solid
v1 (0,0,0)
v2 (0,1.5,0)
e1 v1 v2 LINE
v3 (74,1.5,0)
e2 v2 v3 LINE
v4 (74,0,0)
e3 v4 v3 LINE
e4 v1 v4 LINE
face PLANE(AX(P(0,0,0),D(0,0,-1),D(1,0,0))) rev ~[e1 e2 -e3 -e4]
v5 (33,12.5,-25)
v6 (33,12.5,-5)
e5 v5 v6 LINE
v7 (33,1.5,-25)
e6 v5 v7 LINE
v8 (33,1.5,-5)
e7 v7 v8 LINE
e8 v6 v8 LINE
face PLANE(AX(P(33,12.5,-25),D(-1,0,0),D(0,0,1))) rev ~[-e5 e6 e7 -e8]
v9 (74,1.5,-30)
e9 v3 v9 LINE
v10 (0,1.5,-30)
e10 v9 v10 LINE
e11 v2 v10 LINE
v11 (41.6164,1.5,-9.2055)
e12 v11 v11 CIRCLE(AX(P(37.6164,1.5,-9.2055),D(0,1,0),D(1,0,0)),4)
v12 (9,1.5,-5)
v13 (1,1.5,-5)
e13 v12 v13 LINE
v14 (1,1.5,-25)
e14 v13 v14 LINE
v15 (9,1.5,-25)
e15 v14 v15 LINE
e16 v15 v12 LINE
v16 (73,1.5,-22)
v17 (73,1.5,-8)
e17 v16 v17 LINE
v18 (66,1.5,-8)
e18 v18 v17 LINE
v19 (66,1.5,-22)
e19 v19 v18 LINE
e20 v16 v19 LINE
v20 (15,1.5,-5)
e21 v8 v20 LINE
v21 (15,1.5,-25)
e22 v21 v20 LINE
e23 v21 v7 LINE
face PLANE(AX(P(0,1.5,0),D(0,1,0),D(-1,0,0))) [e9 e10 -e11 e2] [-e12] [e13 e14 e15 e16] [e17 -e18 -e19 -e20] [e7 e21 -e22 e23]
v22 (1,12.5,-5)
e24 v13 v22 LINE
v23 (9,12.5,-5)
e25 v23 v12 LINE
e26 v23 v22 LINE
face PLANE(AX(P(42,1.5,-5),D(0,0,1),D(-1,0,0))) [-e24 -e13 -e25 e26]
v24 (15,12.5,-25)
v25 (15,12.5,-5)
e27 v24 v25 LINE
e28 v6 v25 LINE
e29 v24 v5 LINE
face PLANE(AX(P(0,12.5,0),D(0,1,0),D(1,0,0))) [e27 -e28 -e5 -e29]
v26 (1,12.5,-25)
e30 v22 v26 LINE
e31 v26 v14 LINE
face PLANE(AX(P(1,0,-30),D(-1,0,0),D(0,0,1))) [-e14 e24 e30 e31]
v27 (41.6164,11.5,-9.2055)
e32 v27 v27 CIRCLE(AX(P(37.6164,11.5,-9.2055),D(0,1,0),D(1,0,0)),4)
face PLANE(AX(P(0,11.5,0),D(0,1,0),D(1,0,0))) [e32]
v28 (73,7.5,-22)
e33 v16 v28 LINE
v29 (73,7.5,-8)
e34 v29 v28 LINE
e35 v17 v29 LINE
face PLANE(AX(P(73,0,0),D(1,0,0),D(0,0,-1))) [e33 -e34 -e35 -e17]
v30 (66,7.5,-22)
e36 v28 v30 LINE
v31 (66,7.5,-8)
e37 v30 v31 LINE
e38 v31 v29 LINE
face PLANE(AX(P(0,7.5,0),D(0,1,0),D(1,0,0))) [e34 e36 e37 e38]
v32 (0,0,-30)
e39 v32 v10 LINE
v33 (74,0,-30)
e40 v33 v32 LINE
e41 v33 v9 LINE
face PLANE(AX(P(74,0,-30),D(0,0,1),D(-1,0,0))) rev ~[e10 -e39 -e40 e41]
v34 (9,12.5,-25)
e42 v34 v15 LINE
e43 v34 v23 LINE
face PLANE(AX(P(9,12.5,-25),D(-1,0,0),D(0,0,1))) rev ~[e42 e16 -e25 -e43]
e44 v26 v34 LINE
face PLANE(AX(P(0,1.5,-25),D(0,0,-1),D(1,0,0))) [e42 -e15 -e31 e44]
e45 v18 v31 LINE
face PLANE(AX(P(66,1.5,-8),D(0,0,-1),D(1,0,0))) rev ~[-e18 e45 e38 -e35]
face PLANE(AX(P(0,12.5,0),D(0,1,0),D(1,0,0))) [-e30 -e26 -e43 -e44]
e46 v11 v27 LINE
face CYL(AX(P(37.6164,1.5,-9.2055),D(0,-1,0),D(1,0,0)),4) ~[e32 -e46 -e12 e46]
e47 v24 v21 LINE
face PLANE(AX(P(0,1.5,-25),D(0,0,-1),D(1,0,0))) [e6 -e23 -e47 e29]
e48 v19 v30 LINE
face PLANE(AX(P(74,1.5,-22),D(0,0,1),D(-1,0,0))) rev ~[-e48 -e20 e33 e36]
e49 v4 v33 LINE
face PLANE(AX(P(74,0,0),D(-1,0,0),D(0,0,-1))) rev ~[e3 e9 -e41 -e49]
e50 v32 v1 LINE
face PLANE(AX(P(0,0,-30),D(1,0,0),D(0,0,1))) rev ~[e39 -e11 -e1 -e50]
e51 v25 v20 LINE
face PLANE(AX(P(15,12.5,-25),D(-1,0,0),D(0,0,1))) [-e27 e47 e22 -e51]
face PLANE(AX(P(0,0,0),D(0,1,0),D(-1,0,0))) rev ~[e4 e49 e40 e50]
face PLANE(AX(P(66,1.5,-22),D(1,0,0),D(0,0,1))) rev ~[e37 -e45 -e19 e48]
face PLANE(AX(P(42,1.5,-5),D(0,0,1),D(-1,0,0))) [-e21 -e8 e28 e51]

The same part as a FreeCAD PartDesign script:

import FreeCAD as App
import Part
import Sketcher

doc = App.newDocument("Part")
params = doc.addObject("Spreadsheet::Sheet", "Params")
for row, (alias, value) in enumerate([
    ("sketch1_width", "74 mm"),
    ("sketch1_height", "30 mm"),
    ("pad1_length", "1.5 mm"),
    ("sketch2_width", "42 mm"),
    ("sketch2_height", "20 mm"),
    ("pad2_length", "11 mm"),
    ("sketch3_width", "8 mm"),
    ("sketch3_height", "14 mm"),
    ("pad3_length", "6 mm"),
    ("sketch4_width", "6 mm"),
    ("sketch4_height", "20 mm"),
    ("pocket1_length", "11 mm"),
    ("sketch5_width", "9 mm"),
    ("sketch5_height", "20 mm"),
    ("pocket2_length", "11 mm"),
    ("sketch6_diameter", "8 mm"),
    ("pad4_length", "10 mm"),
    ("sketch7_width", "11 mm"),
    ("sketch7_height", "20 mm"),
    ("pocket3_length", "1 mm"),
    ("sketch8_width", "6 mm"),
    ("sketch8_height", "14 mm"),
    ("pocket4_length", "1 mm"),
], start=1):
    params.set(f"A{row}", alias)
    params.set(f"B{row}", "=" + value)
    params.setAlias(f"B{row}", alias)

body = doc.addObject("PartDesign::Body", "Body")

# Sketch on XZ plane
sketch1 = doc.addObject("Sketcher::SketchObject", "Sketch")
body.addObject(sketch1)
sketch1.AttachmentSupport = (doc.XZ_Plane, [""])
sketch1.MapMode = "FlatFace"
sketch1.addGeometry([
    Part.LineSegment(App.Vector(0, -30, 0), App.Vector(0, 0, 0)),
    Part.LineSegment(App.Vector(0, 0, 0), App.Vector(74, 0, 0)),
    Part.LineSegment(App.Vector(74, 0, 0), App.Vector(74, -30, 0)),
    Part.LineSegment(App.Vector(74, -30, 0), App.Vector(0, -30, 0)),
], False)
sketch1.addConstraint([
    Sketcher.Constraint("Coincident", 0, 2, 1, 1),
    Sketcher.Constraint("Coincident", 1, 2, 2, 1),
    Sketcher.Constraint("Coincident", 2, 2, 3, 1),
    Sketcher.Constraint("Coincident", 3, 2, 0, 1),
    Sketcher.Constraint("Vertical", 0),
    Sketcher.Constraint("Horizontal", 1),
    Sketcher.Constraint("Vertical", 2),
    Sketcher.Constraint("Horizontal", 3),
    Sketcher.Constraint("Coincident", 0, 2, -1, 1),
    Sketcher.Constraint("DistanceX", 1, 1, 1, 2, 74.0),
    Sketcher.Constraint("DistanceY", 0, 1, 0, 2, 30.0),
])
sketch1.setExpression("Constraints[9]", "Params.sketch1_width")
sketch1.setExpression("Constraints[10]", "Params.sketch1_height")
pad1 = doc.addObject("PartDesign::Pad", "Pad")
body.addObject(pad1)
pad1.Profile = sketch1
pad1.setExpression("Length", "Params.pad1_length")
pad1.Reversed = True

# Sketch on XZ plane
sketch2 = doc.addObject("Sketcher::SketchObject", "Sketch001")
body.addObject(sketch2)
sketch2.AttachmentSupport = (doc.XZ_Plane, [""])
sketch2.MapMode = "FlatFace"
sketch2.AttachmentOffset = App.Placement(App.Vector(0, 0, -1.5), App.Rotation())
sketch2.addGeometry([
    Part.LineSegment(App.Vector(42, -25, 0), App.Vector(0, -25, 0)),
    Part.LineSegment(App.Vector(0, -25, 0), App.Vector(0, -5, 0)),
    Part.LineSegment(App.Vector(0, -5, 0), App.Vector(42, -5, 0)),
    Part.LineSegment(App.Vector(42, -5, 0), App.Vector(42, -25, 0)),
], False)
sketch2.addConstraint([
    Sketcher.Constraint("Coincident", 0, 2, 1, 1),
    Sketcher.Constraint("Coincident", 1, 2, 2, 1),
    Sketcher.Constraint("Coincident", 2, 2, 3, 1),
    Sketcher.Constraint("Coincident", 3, 2, 0, 1),
    Sketcher.Constraint("Horizontal", 0),
    Sketcher.Constraint("Vertical", 1),
    Sketcher.Constraint("Horizontal", 2),
    Sketcher.Constraint("Vertical", 3),
    Sketcher.Constraint("PointOnObject", 0, 2, -2),
    Sketcher.Constraint("DistanceX", 0, 2, 0, 1, 42.0),
    Sketcher.Constraint("DistanceY", 1, 2, -1, 1, 5.0),
    Sketcher.Constraint("DistanceY", 1, 1, 1, 2, 20.0),
])
sketch2.setExpression("Constraints[9]", "Params.sketch2_width")
sketch2.setExpression("Constraints[11]", "Params.sketch2_height")
pad2 = doc.addObject("PartDesign::Pad", "Pad001")
body.addObject(pad2)
pad2.Profile = sketch2
pad2.setExpression("Length", "Params.pad2_length")
pad2.Reversed = True

# Sketch on XZ plane
sketch3 = doc.addObject("Sketcher::SketchObject", "Sketch002")
body.addObject(sketch3)
sketch3.AttachmentSupport = (doc.XZ_Plane, [""])
sketch3.MapMode = "FlatFace"
sketch3.AttachmentOffset = App.Placement(App.Vector(0, 0, -1.5), App.Rotation())
sketch3.addGeometry([
    Part.LineSegment(App.Vector(74, -8, 0), App.Vector(74, -22, 0)),
    Part.LineSegment(App.Vector(74, -22, 0), App.Vector(66, -22, 0)),
    Part.LineSegment(App.Vector(66, -22, 0), App.Vector(66, -8, 0)),
    Part.LineSegment(App.Vector(66, -8, 0), App.Vector(74, -8, 0)),
], False)
sketch3.addConstraint([
    Sketcher.Constraint("Coincident", 0, 2, 1, 1),
    Sketcher.Constraint("Coincident", 1, 2, 2, 1),
    Sketcher.Constraint("Coincident", 2, 2, 3, 1),
    Sketcher.Constraint("Coincident", 3, 2, 0, 1),
    Sketcher.Constraint("Vertical", 0),
    Sketcher.Constraint("Horizontal", 1),
    Sketcher.Constraint("Vertical", 2),
    Sketcher.Constraint("Horizontal", 3),
    Sketcher.Constraint("DistanceX", 1, 2, 1, 1, 8.0),
    Sketcher.Constraint("DistanceY", 2, 2, -1, 1, 8.0),
    Sketcher.Constraint("DistanceY", 0, 2, 0, 1, 14.0),
    Sketcher.Constraint("DistanceX", -1, 1, 0, 2, 74.0),
])
sketch3.setExpression("Constraints[8]", "Params.sketch3_width")
sketch3.setExpression("Constraints[10]", "Params.sketch3_height")
pad3 = doc.addObject("PartDesign::Pad", "Pad002")
body.addObject(pad3)
pad3.Profile = sketch3
pad3.setExpression("Length", "Params.pad3_length")
pad3.Reversed = True

# Sketch on XZ plane
sketch4 = doc.addObject("Sketcher::SketchObject", "Sketch003")
body.addObject(sketch4)
sketch4.AttachmentSupport = (doc.XZ_Plane, [""])
sketch4.MapMode = "FlatFace"
sketch4.AttachmentOffset = App.Placement(App.Vector(0, 0, -12.5), App.Rotation())
sketch4.addGeometry([
    Part.LineSegment(App.Vector(15, -25, 0), App.Vector(9, -25, 0)),
    Part.LineSegment(App.Vector(9, -25, 0), App.Vector(9, -5, 0)),
    Part.LineSegment(App.Vector(9, -5, 0), App.Vector(15, -5, 0)),
    Part.LineSegment(App.Vector(15, -5, 0), App.Vector(15, -25, 0)),
], False)
sketch4.addConstraint([
    Sketcher.Constraint("Coincident", 0, 2, 1, 1),
    Sketcher.Constraint("Coincident", 1, 2, 2, 1),
    Sketcher.Constraint("Coincident", 2, 2, 3, 1),
    Sketcher.Constraint("Coincident", 3, 2, 0, 1),
    Sketcher.Constraint("Horizontal", 0),
    Sketcher.Constraint("Vertical", 1),
    Sketcher.Constraint("Horizontal", 2),
    Sketcher.Constraint("Vertical", 3),
    Sketcher.Constraint("DistanceX", -1, 1, 0, 2, 9.0),
    Sketcher.Constraint("DistanceX", 0, 2, 0, 1, 6.0),
    Sketcher.Constraint("DistanceY", 1, 1, 1, 2, 20.0),
    Sketcher.Constraint("DistanceY", 0, 2, -1, 1, 25.0),
])
sketch4.setExpression("Constraints[9]", "Params.sketch4_width")
sketch4.setExpression("Constraints[10]", "Params.sketch4_height")
pocket1 = doc.addObject("PartDesign::Pocket", "Pocket")
body.addObject(pocket1)
pocket1.Profile = sketch4
pocket1.setExpression("Length", "Params.pocket1_length")
pocket1.Reversed = True

# Sketch on XZ plane
sketch5 = doc.addObject("Sketcher::SketchObject", "Sketch004")
body.addObject(sketch5)
sketch5.AttachmentSupport = (doc.XZ_Plane, [""])
sketch5.MapMode = "FlatFace"
sketch5.AttachmentOffset = App.Placement(App.Vector(0, 0, -12.5), App.Rotation())
sketch5.addGeometry([
    Part.LineSegment(App.Vector(33, -25, 0), App.Vector(33, -5, 0)),
    Part.LineSegment(App.Vector(33, -5, 0), App.Vector(42, -5, 0)),
    Part.LineSegment(App.Vector(42, -5, 0), App.Vector(42, -25, 0)),
    Part.LineSegment(App.Vector(42, -25, 0), App.Vector(33, -25, 0)),
], False)
sketch5.addConstraint([
    Sketcher.Constraint("Coincident", 0, 2, 1, 1),
    Sketcher.Constraint("Coincident", 1, 2, 2, 1),
    Sketcher.Constraint("Coincident", 2, 2, 3, 1),
    Sketcher.Constraint("Coincident", 3, 2, 0, 1),
    Sketcher.Constraint("Vertical", 0),
    Sketcher.Constraint("Horizontal", 1),
    Sketcher.Constraint("Vertical", 2),
    Sketcher.Constraint("Horizontal", 3),
    Sketcher.Constraint("DistanceX", 1, 1, 1, 2, 9.0),
    Sketcher.Constraint("DistanceY", 0, 1, 0, 2, 20.0),
    Sketcher.Constraint("DistanceX", -1, 1, 0, 2, 33.0),
    Sketcher.Constraint("DistanceY", 0, 2, -1, 1, 5.0),
])
sketch5.setExpression("Constraints[8]", "Params.sketch5_width")
sketch5.setExpression("Constraints[9]", "Params.sketch5_height")
pocket2 = doc.addObject("PartDesign::Pocket", "Pocket001")
body.addObject(pocket2)
pocket2.Profile = sketch5
pocket2.setExpression("Length", "Params.pocket2_length")
pocket2.Reversed = True

# Sketch on XZ plane
sketch6 = doc.addObject("Sketcher::SketchObject", "Sketch005")
body.addObject(sketch6)
sketch6.AttachmentSupport = (doc.XZ_Plane, [""])
sketch6.MapMode = "FlatFace"
sketch6.AttachmentOffset = App.Placement(App.Vector(0, 0, -1.5), App.Rotation())
sketch6.addGeometry(Part.Circle(App.Vector(37.6, -9.2, 0), App.Vector(0, 0, 1), 4), False)
sketch6.addConstraint([
    Sketcher.Constraint("Diameter", 0, 8.0),
    Sketcher.Constraint("DistanceX", -1, 1, 0, 3, 37.6164),
    Sketcher.Constraint("DistanceY", 0, 3, -1, 1, 9.2055),
])
sketch6.setExpression("Constraints[0]", "Params.sketch6_diameter")
pad4 = doc.addObject("PartDesign::Pad", "Pad003")
body.addObject(pad4)
pad4.Profile = sketch6
pad4.setExpression("Length", "Params.pad4_length")
pad4.Reversed = True

# Sketch on YZ plane
sketch7 = doc.addObject("Sketcher::SketchObject", "Sketch006")
body.addObject(sketch7)
sketch7.AttachmentSupport = (doc.YZ_Plane, [""])
sketch7.MapMode = "FlatFace"
sketch7.addGeometry([
    Part.LineSegment(App.Vector(2, -25, 0), App.Vector(2, -5, 0)),
    Part.LineSegment(App.Vector(2, -5, 0), App.Vector(12, -5, 0)),
    Part.LineSegment(App.Vector(12, -5, 0), App.Vector(12, -25, 0)),
    Part.LineSegment(App.Vector(12, -25, 0), App.Vector(2, -25, 0)),
], False)
sketch7.addConstraint([
    Sketcher.Constraint("Coincident", 0, 2, 1, 1),
    Sketcher.Constraint("Coincident", 1, 2, 2, 1),
    Sketcher.Constraint("Coincident", 2, 2, 3, 1),
    Sketcher.Constraint("Coincident", 3, 2, 0, 1),
    Sketcher.Constraint("Vertical", 0),
    Sketcher.Constraint("Horizontal", 1),
    Sketcher.Constraint("Vertical", 2),
    Sketcher.Constraint("Horizontal", 3),
    Sketcher.Constraint("DistanceX", 1, 1, 1, 2, 11.0),
    Sketcher.Constraint("DistanceY", 0, 1, 0, 2, 20.0),
    Sketcher.Constraint("DistanceY", 0, 2, -1, 1, 5.0),
    Sketcher.Constraint("DistanceX", -1, 1, 0, 2, 1.5),
])
sketch7.setExpression("Constraints[8]", "Params.sketch7_width")
sketch7.setExpression("Constraints[9]", "Params.sketch7_height")
pocket3 = doc.addObject("PartDesign::Pocket", "Pocket002")
body.addObject(pocket3)
pocket3.Profile = sketch7
pocket3.setExpression("Length", "Params.pocket3_length")
pocket3.Reversed = True

# Sketch on YZ plane
sketch8 = doc.addObject("Sketcher::SketchObject", "Sketch007")
body.addObject(sketch8)
sketch8.AttachmentSupport = (doc.YZ_Plane, [""])
sketch8.MapMode = "FlatFace"
sketch8.AttachmentOffset = App.Placement(App.Vector(0, 0, 74), App.Rotation())
sketch8.addGeometry([
    Part.LineSegment(App.Vector(8, -8, 0), App.Vector(2, -8, 0)),
    Part.LineSegment(App.Vector(2, -8, 0), App.Vector(2, -22, 0)),
    Part.LineSegment(App.Vector(2, -22, 0), App.Vector(8, -22, 0)),
    Part.LineSegment(App.Vector(8, -22, 0), App.Vector(8, -8, 0)),
], False)
sketch8.addConstraint([
    Sketcher.Constraint("Coincident", 0, 2, 1, 1),
    Sketcher.Constraint("Coincident", 1, 2, 2, 1),
    Sketcher.Constraint("Coincident", 2, 2, 3, 1),
    Sketcher.Constraint("Coincident", 3, 2, 0, 1),
    Sketcher.Constraint("Horizontal", 0),
    Sketcher.Constraint("Vertical", 1),
    Sketcher.Constraint("Horizontal", 2),
    Sketcher.Constraint("Vertical", 3),
    Sketcher.Constraint("DistanceX", 0, 2, 0, 1, 6.0),
    Sketcher.Constraint("DistanceY", 1, 2, 1, 1, 14.0),
    Sketcher.Constraint("DistanceY", 0, 2, -1, 1, 8.0),
    Sketcher.Constraint("DistanceX", -1, 1, 0, 2, 1.5),
])
sketch8.setExpression("Constraints[8]", "Params.sketch8_width")
sketch8.setExpression("Constraints[9]", "Params.sketch8_height")
pocket4 = doc.addObject("PartDesign::Pocket", "Pocket003")
body.addObject(pocket4)
pocket4.Profile = sketch8
pocket4.setExpression("Length", "Params.pocket4_length")

doc.recompute()
